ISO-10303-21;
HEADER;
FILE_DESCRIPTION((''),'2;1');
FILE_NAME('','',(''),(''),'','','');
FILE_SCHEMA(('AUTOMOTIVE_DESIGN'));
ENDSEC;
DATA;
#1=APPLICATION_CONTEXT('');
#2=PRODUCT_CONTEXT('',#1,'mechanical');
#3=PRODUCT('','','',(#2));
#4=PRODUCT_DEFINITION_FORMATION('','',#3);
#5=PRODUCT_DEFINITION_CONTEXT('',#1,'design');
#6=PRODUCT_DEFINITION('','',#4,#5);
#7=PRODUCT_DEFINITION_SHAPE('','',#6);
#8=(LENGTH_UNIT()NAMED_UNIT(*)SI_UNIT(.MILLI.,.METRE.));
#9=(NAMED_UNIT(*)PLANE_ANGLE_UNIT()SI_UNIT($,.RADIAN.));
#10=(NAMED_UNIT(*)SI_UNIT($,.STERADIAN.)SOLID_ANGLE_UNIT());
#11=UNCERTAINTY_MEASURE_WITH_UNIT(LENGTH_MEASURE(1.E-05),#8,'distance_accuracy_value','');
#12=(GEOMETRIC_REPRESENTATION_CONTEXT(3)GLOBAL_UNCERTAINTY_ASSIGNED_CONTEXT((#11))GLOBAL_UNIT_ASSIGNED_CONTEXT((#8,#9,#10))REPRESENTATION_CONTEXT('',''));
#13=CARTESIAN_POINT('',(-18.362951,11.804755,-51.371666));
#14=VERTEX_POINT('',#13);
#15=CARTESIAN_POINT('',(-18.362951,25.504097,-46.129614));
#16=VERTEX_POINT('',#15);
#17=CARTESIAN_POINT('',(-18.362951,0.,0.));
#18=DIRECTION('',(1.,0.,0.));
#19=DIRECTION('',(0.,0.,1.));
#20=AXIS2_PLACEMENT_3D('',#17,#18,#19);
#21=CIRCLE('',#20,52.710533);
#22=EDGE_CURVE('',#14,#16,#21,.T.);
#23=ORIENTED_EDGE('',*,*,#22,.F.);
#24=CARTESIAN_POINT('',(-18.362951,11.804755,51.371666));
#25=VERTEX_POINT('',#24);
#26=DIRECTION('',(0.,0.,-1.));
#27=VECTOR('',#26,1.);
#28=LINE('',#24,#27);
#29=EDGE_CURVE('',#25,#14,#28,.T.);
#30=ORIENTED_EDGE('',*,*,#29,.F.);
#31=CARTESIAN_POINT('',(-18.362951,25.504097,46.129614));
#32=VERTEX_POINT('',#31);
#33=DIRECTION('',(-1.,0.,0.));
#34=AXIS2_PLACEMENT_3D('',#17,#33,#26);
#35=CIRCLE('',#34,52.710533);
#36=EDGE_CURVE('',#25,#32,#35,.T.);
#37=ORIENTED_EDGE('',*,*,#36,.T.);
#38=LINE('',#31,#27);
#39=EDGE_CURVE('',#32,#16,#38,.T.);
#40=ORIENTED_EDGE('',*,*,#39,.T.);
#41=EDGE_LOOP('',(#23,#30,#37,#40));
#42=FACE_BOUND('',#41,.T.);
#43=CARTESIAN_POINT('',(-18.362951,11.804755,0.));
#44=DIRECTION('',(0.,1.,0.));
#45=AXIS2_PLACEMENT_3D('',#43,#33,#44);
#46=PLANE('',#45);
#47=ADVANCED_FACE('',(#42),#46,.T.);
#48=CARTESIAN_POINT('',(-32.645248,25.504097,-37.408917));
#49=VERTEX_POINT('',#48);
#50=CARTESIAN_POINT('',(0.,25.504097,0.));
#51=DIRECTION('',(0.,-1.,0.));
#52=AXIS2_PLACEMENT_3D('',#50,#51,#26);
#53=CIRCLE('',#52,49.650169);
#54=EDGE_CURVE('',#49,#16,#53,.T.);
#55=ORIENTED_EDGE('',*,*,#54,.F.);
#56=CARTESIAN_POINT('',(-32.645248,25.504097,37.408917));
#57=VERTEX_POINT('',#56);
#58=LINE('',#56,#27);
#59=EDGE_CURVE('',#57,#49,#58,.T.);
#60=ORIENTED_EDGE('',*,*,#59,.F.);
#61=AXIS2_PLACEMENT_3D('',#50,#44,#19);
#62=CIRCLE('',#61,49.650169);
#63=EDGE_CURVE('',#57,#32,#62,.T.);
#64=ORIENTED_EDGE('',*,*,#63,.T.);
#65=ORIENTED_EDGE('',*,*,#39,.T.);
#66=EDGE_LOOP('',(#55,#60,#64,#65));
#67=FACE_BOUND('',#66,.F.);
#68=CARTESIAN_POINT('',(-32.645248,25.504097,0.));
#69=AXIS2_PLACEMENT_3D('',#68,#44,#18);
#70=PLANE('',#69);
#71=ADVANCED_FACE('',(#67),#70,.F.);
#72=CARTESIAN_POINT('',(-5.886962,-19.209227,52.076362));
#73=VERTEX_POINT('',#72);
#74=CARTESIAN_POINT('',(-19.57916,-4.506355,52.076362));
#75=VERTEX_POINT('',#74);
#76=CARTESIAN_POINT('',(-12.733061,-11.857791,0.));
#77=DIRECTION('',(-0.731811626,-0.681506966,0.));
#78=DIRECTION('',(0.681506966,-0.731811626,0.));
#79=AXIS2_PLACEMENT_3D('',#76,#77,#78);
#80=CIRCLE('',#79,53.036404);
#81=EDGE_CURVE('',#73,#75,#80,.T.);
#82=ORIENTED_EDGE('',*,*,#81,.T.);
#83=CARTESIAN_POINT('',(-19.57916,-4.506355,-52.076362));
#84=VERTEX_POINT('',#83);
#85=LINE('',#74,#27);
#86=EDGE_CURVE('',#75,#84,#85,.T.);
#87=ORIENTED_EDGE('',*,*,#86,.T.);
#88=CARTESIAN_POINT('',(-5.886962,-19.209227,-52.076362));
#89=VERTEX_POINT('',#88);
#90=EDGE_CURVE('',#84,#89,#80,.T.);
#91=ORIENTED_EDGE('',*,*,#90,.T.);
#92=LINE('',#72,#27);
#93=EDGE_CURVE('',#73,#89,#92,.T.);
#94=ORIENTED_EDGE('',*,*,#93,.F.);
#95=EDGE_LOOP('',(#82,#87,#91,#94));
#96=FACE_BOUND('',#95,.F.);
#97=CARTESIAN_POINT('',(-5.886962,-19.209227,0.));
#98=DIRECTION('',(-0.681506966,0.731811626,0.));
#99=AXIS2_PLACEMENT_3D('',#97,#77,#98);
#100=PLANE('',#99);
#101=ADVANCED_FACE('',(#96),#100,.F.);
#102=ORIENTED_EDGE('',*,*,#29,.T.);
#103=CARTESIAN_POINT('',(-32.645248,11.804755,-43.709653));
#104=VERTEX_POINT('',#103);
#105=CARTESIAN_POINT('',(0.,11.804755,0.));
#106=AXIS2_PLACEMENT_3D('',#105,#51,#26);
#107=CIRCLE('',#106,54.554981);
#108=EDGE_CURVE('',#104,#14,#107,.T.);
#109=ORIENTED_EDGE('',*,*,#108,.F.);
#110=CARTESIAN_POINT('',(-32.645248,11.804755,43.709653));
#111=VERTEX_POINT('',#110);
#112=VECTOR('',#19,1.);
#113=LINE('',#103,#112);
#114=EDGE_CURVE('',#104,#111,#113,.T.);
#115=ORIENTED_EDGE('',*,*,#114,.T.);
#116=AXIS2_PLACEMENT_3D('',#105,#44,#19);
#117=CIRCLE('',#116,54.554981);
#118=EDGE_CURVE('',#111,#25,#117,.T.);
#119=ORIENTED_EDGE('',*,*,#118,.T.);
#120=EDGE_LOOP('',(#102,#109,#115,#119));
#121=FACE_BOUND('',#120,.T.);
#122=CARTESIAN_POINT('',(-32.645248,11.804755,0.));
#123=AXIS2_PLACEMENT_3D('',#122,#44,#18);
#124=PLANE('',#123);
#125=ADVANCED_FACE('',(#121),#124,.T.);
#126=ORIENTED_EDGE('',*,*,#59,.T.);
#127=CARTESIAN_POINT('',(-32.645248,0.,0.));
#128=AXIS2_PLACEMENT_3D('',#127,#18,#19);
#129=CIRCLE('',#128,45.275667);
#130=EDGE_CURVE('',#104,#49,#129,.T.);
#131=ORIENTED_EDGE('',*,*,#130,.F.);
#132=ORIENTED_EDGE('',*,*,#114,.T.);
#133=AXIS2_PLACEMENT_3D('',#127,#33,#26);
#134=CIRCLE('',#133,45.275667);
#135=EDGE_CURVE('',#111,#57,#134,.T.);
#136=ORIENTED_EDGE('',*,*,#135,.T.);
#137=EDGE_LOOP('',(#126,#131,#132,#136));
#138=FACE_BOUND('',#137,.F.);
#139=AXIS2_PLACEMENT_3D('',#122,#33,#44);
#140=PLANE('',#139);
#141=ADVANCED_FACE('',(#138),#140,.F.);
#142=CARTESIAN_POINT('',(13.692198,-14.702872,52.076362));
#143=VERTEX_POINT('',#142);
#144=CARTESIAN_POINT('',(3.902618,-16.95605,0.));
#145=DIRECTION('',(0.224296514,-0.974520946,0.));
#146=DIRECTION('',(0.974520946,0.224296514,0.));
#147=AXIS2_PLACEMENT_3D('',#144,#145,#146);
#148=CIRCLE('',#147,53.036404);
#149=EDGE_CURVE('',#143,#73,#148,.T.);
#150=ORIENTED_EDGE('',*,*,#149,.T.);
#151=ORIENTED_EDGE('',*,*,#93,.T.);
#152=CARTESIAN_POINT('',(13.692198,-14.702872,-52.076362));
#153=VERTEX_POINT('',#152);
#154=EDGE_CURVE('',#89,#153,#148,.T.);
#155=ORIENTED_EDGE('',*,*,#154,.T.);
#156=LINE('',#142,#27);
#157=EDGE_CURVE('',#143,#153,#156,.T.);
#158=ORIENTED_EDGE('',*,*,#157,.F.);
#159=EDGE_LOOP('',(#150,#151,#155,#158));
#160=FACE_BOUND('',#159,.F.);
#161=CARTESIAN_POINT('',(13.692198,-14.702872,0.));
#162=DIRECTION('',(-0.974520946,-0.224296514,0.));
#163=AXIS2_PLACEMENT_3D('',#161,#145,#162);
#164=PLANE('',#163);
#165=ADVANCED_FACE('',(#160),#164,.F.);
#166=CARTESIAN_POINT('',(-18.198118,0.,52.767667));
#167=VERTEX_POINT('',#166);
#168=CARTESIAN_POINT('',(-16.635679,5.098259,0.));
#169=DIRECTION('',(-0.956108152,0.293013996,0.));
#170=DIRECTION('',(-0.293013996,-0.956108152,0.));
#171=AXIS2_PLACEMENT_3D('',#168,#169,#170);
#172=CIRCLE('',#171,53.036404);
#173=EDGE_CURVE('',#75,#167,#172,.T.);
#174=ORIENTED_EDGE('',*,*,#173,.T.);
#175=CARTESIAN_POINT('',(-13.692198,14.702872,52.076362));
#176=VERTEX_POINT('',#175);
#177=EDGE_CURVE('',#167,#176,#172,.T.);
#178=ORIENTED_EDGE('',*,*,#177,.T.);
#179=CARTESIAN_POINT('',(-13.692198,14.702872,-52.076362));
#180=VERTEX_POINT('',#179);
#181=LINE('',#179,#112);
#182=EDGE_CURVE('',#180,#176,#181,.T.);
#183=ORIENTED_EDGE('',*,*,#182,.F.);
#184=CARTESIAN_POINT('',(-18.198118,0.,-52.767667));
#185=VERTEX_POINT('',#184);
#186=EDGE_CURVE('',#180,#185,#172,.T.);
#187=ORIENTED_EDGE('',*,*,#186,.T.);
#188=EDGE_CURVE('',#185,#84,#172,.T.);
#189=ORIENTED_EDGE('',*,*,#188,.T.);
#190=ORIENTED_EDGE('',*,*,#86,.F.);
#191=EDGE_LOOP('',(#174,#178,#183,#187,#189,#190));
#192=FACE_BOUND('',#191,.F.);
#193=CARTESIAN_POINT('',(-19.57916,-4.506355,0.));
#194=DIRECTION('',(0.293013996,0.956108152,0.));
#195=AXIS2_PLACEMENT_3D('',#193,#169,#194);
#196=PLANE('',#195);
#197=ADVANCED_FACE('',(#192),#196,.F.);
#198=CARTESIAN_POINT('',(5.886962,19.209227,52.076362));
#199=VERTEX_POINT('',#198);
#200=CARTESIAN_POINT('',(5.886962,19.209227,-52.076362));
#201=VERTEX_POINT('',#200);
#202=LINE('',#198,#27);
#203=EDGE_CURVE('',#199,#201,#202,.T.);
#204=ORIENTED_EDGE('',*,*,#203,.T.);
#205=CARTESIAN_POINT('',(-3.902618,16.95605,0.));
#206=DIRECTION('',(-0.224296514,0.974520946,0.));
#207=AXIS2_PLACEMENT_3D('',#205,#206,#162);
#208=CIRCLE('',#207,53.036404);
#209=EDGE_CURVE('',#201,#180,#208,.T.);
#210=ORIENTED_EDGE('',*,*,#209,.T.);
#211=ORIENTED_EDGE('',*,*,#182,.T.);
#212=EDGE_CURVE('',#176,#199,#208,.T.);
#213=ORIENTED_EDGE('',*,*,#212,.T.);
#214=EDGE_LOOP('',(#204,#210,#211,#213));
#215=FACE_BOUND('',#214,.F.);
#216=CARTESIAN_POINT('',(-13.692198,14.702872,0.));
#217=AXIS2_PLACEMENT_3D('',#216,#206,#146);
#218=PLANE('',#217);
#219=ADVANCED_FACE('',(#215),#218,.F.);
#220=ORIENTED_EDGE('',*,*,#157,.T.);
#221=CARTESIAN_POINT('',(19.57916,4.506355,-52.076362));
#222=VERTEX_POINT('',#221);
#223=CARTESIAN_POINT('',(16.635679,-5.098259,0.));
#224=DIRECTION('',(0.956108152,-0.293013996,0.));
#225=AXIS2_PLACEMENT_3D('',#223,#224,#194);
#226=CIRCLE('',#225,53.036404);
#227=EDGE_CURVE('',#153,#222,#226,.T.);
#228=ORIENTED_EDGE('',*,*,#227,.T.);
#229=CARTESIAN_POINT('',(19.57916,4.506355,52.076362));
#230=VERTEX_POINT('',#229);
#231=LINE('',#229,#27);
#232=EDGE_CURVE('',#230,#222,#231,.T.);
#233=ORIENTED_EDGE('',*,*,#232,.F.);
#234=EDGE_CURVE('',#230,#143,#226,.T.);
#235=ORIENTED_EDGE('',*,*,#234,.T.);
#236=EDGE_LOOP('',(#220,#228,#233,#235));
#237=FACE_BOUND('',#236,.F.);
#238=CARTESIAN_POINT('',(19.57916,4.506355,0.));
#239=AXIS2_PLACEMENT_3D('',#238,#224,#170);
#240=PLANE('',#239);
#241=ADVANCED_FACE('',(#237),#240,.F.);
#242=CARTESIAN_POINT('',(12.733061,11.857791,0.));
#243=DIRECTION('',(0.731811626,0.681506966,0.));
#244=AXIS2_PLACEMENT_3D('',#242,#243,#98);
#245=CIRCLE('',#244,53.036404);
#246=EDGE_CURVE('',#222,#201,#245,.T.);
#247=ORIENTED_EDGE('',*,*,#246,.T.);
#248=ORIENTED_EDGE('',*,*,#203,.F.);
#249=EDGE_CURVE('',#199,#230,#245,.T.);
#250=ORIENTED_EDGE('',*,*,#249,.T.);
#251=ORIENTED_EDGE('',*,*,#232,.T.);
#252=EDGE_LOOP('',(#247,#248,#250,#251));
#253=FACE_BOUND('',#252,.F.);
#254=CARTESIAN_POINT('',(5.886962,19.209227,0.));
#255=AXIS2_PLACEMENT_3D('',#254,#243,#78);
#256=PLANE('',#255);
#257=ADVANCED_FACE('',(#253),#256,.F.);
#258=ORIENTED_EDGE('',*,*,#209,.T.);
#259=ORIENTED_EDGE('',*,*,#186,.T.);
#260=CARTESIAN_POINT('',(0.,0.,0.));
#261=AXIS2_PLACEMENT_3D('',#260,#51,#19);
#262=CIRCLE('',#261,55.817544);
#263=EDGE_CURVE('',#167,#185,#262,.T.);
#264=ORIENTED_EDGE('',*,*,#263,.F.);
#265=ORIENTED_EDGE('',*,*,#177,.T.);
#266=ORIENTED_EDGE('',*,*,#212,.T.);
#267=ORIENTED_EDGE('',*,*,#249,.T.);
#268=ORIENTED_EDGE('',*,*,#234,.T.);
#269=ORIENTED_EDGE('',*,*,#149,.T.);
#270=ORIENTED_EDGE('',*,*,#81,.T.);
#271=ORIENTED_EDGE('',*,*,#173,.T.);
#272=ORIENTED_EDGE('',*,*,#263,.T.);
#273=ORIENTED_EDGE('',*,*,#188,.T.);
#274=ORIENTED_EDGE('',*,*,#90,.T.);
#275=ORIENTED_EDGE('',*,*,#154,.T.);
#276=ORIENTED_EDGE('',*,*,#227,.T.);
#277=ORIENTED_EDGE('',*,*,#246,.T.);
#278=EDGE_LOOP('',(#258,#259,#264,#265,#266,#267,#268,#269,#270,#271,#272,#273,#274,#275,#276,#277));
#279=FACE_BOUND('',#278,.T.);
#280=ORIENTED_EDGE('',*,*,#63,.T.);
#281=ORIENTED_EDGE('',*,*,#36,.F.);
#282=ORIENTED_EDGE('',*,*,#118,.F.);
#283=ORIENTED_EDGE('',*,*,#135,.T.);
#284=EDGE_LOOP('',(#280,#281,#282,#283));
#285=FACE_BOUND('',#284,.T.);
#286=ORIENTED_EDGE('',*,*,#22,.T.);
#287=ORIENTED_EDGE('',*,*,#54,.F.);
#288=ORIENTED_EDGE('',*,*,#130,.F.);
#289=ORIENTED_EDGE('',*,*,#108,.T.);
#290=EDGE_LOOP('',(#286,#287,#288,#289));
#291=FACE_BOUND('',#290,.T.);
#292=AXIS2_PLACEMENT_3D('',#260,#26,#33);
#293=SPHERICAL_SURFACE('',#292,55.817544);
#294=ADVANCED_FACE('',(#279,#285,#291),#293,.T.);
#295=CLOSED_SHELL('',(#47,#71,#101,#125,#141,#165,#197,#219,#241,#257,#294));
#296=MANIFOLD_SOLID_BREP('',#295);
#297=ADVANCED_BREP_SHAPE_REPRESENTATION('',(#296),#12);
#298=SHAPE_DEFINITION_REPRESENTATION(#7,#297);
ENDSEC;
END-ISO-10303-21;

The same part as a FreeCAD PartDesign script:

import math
import FreeCAD as App
import Part
import Sketcher
from FreeCAD import Vector
Q = App.Units.Quantity


def add_polygon(sketch, points):
    """Adds a closed chain of lines whose ends are joined by coincident constraints."""
    first, n = sketch.GeometryCount, len(points)
    for a, b in zip(points, points[1:] + points[:1]):
        sketch.addGeometry(Part.LineSegment(App.Vector(*a, 0), App.Vector(*b, 0)), False)
    for i in range(n):
        sketch.addConstraint(Sketcher.Constraint("Coincident", first + i, 2, first + (i + 1) % n, 1))

doc = App.newDocument("Part")
body = doc.addObject("PartDesign::Body", "Body")

sketch1 = body.newObject("Sketcher::SketchObject", "Sketch")
sketch1.AttachmentSupport = (doc.getObject("XZ_Plane"), [""])
sketch1.MapMode = "FlatFace"
sketch1.addGeometry([
    Part.LineSegment(Vector(0, -56, 0), Vector(0, 56, 0)),
    Part.ArcOfCircle(Part.Circle(Vector(0, 0, 0), Vector(0, 0, 1), 56), math.radians(90), math.radians(270)),
], False)
sketch1.addConstraint([
    Sketcher.Constraint("Coincident", 0, 1, 1, 2),
    Sketcher.Constraint("Coincident", 1, 1, 0, 2),
    Sketcher.Constraint("Vertical", 0),
    Sketcher.Constraint("Coincident", 1, 3, -1, 1),
    Sketcher.Constraint("PointOnObject", 0, 1, -2),
    Sketcher.Constraint("Radius", 1, Q("55.817544 mm")),
])
revolution = body.newObject("PartDesign::Revolution", "Revolution")
revolution.Profile = sketch1
revolution.ReferenceAxis = (sketch1, ["V_Axis"])
revolution.Angle = 360

sketch2 = body.newObject("Sketcher::SketchObject", "Sketch001")
sketch2.AttachmentSupport = (doc.getObject("XY_Plane"), [""])
sketch2.MapMode = "FlatFace"
add_polygon(sketch2, [(-33, 26), (-33, 12), (-18, 12), (-18, 26)])
sketch2.addConstraint([
    Sketcher.Constraint("Vertical", 0),
    Sketcher.Constraint("Horizontal", 1),
    Sketcher.Constraint("Vertical", 2),
    Sketcher.Constraint("Horizontal", 3),
    Sketcher.Constraint("DistanceX", 1, 1, 1, 2, Q("14.282297 mm")),
    Sketcher.Constraint("DistanceY", 0, 2, 0, 1, Q("13.699342 mm")),
    Sketcher.Constraint("DistanceX", 1, 2, -1, 1, Q("18.362951 mm")),
    Sketcher.Constraint("DistanceY", -1, 1, 0, 2, Q("11.804755 mm")),
])
pocket1 = body.newObject("PartDesign::Pocket", "Pocket")
pocket1.Profile = sketch2
pocket1.Length = Q("2.67 in")

sketch3 = body.newObject("Sketcher::SketchObject", "Sketch002")
sketch3.AttachmentSupport = (doc.getObject("XY_Plane"), [""])
sketch3.MapMode = "FlatFace"
add_polygon(sketch3, [(-33, 26), (-33, 12), (-18, 12), (-18, 26)])
sketch3.addConstraint([
    Sketcher.Constraint("Vertical", 0),
    Sketcher.Constraint("Horizontal", 1),
    Sketcher.Constraint("Vertical", 2),
    Sketcher.Constraint("Horizontal", 3),
    Sketcher.Constraint("DistanceX", 1, 1, 1, 2, Q("14.282297 mm")),
    Sketcher.Constraint("DistanceY", 0, 2, 0, 1, Q("13.699342 mm")),
    Sketcher.Constraint("DistanceX", 1, 2, -1, 1, Q("18.362951 mm")),
    Sketcher.Constraint("DistanceY", -1, 1, 0, 2, Q("11.804755 mm")),
])
pocket2 = body.newObject("PartDesign::Pocket", "Pocket001")
pocket2.Profile = sketch3
pocket2.Length = Q("8.74 in")
pocket2.Reversed = True

sketch4 = body.newObject("Sketcher::SketchObject", "Sketch003")
sketch4.AttachmentSupport = (doc.getObject("XY_Plane"), [""])
sketch4.MapMode = "FlatFace"
add_polygon(sketch4, [(20, 5), (6, 19), (-14, 15), (-20, -5), (-6, -19), (14, -15)])
sketch4.addConstraint([
    Sketcher.Constraint("Symmetric", 0, 2, 3, 2, -1, 1),
    Sketcher.Constraint("Symmetric", 1, 2, 4, 2, -1, 1),
    Sketcher.Constraint("Symmetric", 2, 2, 5, 2, -1, 1),
    Sketcher.Constraint("Equal", 0, 1),
    Sketcher.Constraint("Equal", 1, 2),
    Sketcher.Constraint("DistanceX", 2, 2, 3, 2, Q("13.692198 mm")),
    Sketcher.Constraint("DistanceY", 3, 2, 1, 2, Q("33.912099 mm")),
    Sketcher.Constraint("Distance", 0, Q("20.091061 mm")),
    Sketcher.Constraint("DistanceX", -1, 1, 0, 2, Q("5.886962 mm")),
])
pocket3 = body.newObject("PartDesign::Pocket", "Pocket002")
pocket3.Profile = sketch4
pocket3.Length = Q("3.81 in")

sketch5 = body.newObject("Sketcher::SketchObject", "Sketch004")
sketch5.AttachmentSupport = (doc.getObject("XY_Plane"), [""])
sketch5.MapMode = "FlatFace"
add_polygon(sketch5, [(6, 19), (20, 5), (14, -15), (-6, -19), (-20, -5), (-14, 15)])
sketch5.addConstraint([
    Sketcher.Constraint("Symmetric", 0, 2, 3, 2, -1, 1),
    Sketcher.Constraint("Symmetric", 1, 2, 4, 2, -1, 1),
    Sketcher.Constraint("Symmetric", 2, 2, 5, 2, -1, 1),
    Sketcher.Constraint("Equal", 0, 1),
    Sketcher.Constraint("Equal", 1, 2),
    Sketcher.Constraint("DistanceX", 3, 2, 2, 2, Q("13.692198 mm")),
    Sketcher.Constraint("DistanceY", 2, 2, 4, 2, Q("33.912099 mm")),
    Sketcher.Constraint("Distance", 0, Q("20.091061 mm")),
    Sketcher.Constraint("DistanceX", -1, 1, 0, 2, Q("19.57916 mm")),
])
pocket4 = body.newObject("PartDesign::Pocket", "Pocket003")
pocket4.Profile = sketch5
pocket4.Length = Q("4.12 in")
pocket4.Reversed = True

doc.recompute()
